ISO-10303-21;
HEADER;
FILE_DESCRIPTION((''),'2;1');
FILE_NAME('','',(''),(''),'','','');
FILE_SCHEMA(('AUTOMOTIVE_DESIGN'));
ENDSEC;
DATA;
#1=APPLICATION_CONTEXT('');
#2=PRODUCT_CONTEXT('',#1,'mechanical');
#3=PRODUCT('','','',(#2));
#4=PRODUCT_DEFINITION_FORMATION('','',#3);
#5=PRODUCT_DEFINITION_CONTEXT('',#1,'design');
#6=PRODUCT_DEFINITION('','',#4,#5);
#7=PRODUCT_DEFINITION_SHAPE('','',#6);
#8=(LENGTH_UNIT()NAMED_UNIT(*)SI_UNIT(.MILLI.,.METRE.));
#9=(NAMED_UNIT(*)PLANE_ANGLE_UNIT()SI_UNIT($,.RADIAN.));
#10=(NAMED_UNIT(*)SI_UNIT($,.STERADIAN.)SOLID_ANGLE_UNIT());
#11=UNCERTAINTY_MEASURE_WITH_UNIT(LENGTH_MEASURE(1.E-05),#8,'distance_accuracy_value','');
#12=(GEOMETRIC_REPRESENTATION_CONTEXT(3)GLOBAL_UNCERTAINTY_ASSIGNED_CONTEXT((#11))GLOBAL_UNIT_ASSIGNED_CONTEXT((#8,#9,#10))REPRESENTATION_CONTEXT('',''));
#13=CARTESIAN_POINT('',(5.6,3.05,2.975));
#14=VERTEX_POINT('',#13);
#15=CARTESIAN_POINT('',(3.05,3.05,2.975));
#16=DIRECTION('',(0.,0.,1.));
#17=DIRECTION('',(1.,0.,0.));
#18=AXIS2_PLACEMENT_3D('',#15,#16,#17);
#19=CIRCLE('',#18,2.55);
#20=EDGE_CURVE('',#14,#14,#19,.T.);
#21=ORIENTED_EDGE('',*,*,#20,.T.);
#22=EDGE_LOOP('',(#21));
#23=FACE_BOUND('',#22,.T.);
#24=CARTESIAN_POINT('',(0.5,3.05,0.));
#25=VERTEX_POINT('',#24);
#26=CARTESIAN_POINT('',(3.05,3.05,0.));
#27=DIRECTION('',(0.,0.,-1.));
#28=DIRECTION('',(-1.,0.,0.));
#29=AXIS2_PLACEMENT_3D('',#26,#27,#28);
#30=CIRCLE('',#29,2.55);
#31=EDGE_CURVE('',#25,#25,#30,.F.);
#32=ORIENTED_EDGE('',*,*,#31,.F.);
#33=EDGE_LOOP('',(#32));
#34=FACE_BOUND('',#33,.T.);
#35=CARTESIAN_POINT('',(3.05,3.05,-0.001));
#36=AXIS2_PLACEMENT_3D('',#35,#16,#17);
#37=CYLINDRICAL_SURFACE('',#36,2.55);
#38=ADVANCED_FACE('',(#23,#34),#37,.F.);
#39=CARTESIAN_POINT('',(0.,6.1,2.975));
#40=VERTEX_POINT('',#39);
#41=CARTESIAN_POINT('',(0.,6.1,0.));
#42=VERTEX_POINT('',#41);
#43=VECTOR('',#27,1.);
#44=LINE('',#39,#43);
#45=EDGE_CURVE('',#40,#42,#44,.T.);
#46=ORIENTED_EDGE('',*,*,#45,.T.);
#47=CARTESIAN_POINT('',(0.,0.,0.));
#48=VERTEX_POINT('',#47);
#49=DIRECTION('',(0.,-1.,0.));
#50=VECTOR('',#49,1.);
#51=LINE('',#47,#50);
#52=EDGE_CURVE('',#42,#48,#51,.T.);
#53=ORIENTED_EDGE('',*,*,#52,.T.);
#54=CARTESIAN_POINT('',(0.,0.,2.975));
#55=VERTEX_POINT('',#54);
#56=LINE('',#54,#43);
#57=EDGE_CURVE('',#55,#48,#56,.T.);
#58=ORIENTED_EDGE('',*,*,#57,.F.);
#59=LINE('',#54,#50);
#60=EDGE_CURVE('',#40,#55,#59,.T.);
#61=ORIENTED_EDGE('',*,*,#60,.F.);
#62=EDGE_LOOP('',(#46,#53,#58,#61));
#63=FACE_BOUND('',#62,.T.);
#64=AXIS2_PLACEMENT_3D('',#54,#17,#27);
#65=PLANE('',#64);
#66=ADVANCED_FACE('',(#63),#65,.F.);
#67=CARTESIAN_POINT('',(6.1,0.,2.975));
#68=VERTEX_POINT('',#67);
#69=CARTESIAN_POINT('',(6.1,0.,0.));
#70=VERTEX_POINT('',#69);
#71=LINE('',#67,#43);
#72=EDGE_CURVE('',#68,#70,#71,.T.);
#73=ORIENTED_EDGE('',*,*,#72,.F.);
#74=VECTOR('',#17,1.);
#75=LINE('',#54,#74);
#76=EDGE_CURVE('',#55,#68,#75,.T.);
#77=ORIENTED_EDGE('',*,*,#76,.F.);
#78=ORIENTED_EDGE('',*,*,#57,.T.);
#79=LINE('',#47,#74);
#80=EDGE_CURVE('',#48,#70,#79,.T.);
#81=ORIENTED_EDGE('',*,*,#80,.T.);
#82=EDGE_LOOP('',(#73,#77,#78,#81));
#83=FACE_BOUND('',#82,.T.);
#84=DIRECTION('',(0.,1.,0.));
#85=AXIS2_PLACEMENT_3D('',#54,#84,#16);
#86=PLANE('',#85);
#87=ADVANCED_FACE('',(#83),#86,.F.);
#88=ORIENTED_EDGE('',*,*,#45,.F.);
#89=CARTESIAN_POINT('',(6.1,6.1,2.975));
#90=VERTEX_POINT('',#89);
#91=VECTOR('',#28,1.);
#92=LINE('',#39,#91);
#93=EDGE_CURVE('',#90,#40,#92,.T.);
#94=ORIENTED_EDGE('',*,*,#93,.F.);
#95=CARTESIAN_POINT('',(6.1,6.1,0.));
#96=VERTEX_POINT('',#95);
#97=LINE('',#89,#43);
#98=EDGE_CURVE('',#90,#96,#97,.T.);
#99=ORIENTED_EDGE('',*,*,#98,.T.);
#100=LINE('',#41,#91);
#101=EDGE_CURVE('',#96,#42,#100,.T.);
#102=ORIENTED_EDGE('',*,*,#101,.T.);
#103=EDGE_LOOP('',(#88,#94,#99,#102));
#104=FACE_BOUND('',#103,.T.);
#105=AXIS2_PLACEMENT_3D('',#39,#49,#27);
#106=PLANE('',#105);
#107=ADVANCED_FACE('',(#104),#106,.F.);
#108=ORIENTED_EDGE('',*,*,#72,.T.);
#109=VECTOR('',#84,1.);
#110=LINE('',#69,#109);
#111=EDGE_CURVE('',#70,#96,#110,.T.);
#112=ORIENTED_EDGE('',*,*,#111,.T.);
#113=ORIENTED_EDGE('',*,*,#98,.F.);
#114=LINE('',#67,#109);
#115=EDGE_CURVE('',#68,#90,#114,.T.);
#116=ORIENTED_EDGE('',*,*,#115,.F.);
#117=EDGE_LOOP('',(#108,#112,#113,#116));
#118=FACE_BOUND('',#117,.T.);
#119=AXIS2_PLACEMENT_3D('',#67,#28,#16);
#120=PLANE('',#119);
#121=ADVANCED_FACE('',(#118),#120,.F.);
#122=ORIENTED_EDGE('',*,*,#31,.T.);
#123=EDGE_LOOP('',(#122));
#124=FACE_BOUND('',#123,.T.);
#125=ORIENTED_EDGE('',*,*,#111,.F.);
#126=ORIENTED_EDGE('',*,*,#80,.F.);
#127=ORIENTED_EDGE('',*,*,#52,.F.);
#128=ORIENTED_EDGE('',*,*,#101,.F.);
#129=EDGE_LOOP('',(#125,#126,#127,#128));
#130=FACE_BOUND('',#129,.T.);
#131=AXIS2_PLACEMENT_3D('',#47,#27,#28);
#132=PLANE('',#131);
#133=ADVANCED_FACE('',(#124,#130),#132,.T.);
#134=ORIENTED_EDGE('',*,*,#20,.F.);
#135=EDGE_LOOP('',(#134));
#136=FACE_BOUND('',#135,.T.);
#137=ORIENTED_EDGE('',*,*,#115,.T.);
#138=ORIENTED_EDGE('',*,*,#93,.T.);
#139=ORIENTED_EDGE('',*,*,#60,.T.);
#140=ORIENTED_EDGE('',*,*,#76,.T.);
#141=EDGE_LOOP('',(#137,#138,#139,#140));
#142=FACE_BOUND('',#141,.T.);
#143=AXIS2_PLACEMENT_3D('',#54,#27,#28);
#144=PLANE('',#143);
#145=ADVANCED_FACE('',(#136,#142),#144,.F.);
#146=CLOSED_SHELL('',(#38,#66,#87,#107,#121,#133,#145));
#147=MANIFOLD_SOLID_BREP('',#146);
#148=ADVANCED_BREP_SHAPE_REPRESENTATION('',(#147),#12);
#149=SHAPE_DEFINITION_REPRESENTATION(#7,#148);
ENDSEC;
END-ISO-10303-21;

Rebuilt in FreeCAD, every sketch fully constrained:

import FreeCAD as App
import Part
import Sketcher
from FreeCAD import Vector
Q = App.Units.Quantity

doc = App.newDocument("Part")
body = doc.addObject("PartDesign::Body", "Body")

# Sketch on XY plane
sketch1 = body.newObject("Sketcher::SketchObject", "Sketch")
sketch1.AttachmentSupport = (doc.getObject("XY_Plane"), [""])
sketch1.MapMode = "FlatFace"
sketch1.addGeometry(Part.LineSegment(Vector(0, 6, 0), Vector(0, 0, 0)), False)
sketch1.addGeometry(Part.LineSegment(Vector(0, 0, 0), Vector(6, 0, 0)), False)
sketch1.addGeometry(Part.LineSegment(Vector(6, 0, 0), Vector(6, 6, 0)), False)
sketch1.addGeometry(Part.LineSegment(Vector(6, 6, 0), Vector(0, 6, 0)), False)
sketch1.addConstraint(Sketcher.Constraint("Coincident", 0, 2, 1, 1))
sketch1.addConstraint(Sketcher.Constraint("Coincident", 1, 2, 2, 1))
sketch1.addConstraint(Sketcher.Constraint("Coincident", 2, 2, 3, 1))
sketch1.addConstraint(Sketcher.Constraint("Coincident", 3, 2, 0, 1))
sketch1.addConstraint(Sketcher.Constraint("Vertical", 0))
sketch1.addConstraint(Sketcher.Constraint("Horizontal", 1))
sketch1.addConstraint(Sketcher.Constraint("Vertical", 2))
sketch1.addConstraint(Sketcher.Constraint("Horizontal", 3))
sketch1.addConstraint(Sketcher.Constraint("Coincident", 0, 2, -1, 1))
sketch1.addConstraint(Sketcher.Constraint("Equal", 3, 0))
sketch1.addConstraint(Sketcher.Constraint("DistanceX", 1, 1, 1, 2, Q("6.1 mm")))
pad1 = body.newObject("PartDesign::Pad", "Pad")
pad1.Profile = sketch1
pad1.Length = 2.975

# Sketch on XY plane
sketch2 = body.newObject("Sketcher::SketchObject", "Sketch001")
sketch2.AttachmentSupport = (doc.getObject("XY_Plane"), [""])
sketch2.MapMode = "FlatFace"
sketch2.AttachmentOffset = App.Placement(Vector(0, 0, 2.975), App.Rotation())
sketch2.addGeometry(Part.Circle(Vector(3, 3, 0), Vector(0, 0, 1), 2.5), False)
sketch2.addConstraint(Sketcher.Constraint("Diameter", 0, Q("5.1 mm")))
sketch2.addConstraint(Sketcher.Constraint("DistanceX", -1, 1, 0, 3, Q("3.05 mm")))
sketch2.addConstraint(Sketcher.Constraint("DistanceY", -1, 1, 0, 3, Q("3.05 mm")))
pocket1 = body.newObject("PartDesign::Pocket", "Pocket")
pocket1.Profile = sketch2
pocket1.Type = "UpToFirst"

doc.recompute()
